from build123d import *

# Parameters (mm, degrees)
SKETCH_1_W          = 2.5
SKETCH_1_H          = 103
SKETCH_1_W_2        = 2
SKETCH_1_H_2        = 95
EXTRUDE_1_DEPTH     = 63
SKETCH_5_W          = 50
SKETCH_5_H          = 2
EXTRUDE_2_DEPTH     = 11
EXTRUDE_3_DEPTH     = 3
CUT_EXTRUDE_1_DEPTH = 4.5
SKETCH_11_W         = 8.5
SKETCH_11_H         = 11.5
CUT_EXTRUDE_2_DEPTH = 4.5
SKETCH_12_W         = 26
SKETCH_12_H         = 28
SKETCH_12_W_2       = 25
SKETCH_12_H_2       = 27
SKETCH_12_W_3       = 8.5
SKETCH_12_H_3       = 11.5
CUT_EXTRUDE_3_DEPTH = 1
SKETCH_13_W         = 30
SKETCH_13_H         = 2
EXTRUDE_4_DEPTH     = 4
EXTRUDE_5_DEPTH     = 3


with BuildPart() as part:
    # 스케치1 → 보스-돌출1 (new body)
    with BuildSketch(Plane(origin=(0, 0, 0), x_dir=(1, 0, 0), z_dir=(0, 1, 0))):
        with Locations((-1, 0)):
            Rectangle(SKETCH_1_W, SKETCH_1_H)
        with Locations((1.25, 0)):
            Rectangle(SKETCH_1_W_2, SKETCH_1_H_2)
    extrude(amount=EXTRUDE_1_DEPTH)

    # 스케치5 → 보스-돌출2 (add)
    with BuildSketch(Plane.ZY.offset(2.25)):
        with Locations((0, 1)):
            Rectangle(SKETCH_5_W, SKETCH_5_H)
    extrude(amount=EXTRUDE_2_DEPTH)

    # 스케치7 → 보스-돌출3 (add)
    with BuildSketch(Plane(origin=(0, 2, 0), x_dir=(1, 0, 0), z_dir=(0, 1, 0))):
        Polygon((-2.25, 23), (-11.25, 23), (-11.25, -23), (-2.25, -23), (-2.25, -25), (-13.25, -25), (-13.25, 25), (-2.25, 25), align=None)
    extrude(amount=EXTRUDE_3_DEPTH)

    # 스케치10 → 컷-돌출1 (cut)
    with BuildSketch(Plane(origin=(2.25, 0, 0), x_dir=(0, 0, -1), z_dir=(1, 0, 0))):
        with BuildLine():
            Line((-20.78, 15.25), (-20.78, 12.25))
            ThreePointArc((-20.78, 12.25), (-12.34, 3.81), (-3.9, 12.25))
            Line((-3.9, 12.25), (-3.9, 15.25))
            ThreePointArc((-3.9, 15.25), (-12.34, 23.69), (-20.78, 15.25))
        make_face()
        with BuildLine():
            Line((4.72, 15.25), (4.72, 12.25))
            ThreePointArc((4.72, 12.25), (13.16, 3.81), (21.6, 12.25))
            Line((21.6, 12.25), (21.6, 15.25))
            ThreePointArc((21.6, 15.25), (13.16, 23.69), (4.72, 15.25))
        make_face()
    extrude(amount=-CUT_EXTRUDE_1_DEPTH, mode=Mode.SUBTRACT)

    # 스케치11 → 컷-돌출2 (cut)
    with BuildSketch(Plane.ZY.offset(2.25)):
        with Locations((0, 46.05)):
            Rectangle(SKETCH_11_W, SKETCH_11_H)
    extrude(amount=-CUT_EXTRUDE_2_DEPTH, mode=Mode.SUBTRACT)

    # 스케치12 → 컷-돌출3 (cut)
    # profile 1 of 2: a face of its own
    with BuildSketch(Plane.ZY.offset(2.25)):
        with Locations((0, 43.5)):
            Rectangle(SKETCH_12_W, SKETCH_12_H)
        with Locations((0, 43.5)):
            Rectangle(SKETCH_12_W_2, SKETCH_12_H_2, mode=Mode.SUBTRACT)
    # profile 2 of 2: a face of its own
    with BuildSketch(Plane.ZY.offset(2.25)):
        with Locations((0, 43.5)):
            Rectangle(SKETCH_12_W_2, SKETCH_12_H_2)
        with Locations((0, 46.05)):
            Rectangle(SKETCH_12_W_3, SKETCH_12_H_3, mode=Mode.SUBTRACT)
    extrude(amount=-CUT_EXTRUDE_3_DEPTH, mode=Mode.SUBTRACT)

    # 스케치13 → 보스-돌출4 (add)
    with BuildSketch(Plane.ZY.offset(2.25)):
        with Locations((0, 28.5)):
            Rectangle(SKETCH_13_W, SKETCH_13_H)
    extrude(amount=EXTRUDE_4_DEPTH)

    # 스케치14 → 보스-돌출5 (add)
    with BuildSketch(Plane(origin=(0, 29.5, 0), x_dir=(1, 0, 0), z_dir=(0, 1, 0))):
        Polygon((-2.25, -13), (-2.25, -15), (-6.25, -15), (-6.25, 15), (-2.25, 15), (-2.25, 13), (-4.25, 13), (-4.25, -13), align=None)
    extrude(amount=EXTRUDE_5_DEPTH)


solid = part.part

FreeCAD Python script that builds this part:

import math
import FreeCAD as App
import Part
import Sketcher
from FreeCAD import Vector


def add_polygon(sketch, points):
    """Adds a closed chain of lines whose ends are joined by coincident constraints."""
    first, n = sketch.GeometryCount, len(points)
    for a, b in zip(points, points[1:] + points[:1]):
        sketch.addGeometry(Part.LineSegment(App.Vector(*a, 0), App.Vector(*b, 0)), False)
    for i in range(n):
        sketch.addConstraint(Sketcher.Constraint("Coincident", first + i, 2, first + (i + 1) % n, 1))

doc = App.newDocument("Part")
body = doc.addObject("PartDesign::Body", "Body")

sketch1 = body.newObject("Sketcher::SketchObject", "Sketch")
sketch1.AttachmentSupport = (doc.getObject("XZ_Plane"), [""])
sketch1.MapMode = "FlatFace"
add_polygon(sketch1, [(-2.25, -51.5), (-2.25, 51.5), (0.25, 51.5), (0.25, 47.5), (2.25, 47.5), (2.25, -47.5), (0.25, -47.5), (0.25, -51.5)])
sketch1.addConstraint([
    Sketcher.Constraint("Vertical", 0),
    Sketcher.Constraint("Horizontal", 1),
    Sketcher.Constraint("Vertical", 2),
    Sketcher.Constraint("Horizontal", 3),
    Sketcher.Constraint("Vertical", 4),
    Sketcher.Constraint("Horizontal", 5),
    Sketcher.Constraint("Vertical", 6),
    Sketcher.Constraint("Horizontal", 7),
    Sketcher.Constraint("Symmetric", 2, 2, 5, 2, -1),
    Sketcher.Constraint("Equal", 2, 6),
    Sketcher.Constraint("DistanceX", 3, 1, 3, 2, 2.0),
    Sketcher.Constraint("DistanceY", 0, 1, 0, 2, 103.0),
    Sketcher.Constraint("DistanceY", 2, 2, 2, 1, 4.0),
    Sketcher.Constraint("DistanceX", 1, 1, 1, 2, 2.5),
    Sketcher.Constraint("DistanceX", 0, 2, -1, 1, 2.25),
])
pad1 = body.newObject("PartDesign::Pad", "Pad")
pad1.Profile = sketch1
pad1.Length = 63
pad1.Reversed = True

sketch2 = body.newObject("Sketcher::SketchObject", "Sketch001")
sketch2.AttachmentSupport = (doc.getObject("YZ_Plane"), [""])
sketch2.MapMode = "FlatFace"
sketch2.AttachmentOffset = App.Placement(Vector(0, 0, -2.25), App.Rotation())
add_polygon(sketch2, [(2, -25), (0, -25), (0, 25), (2, 25)])
sketch2.addConstraint([
    Sketcher.Constraint("Horizontal", 0),
    Sketcher.Constraint("Vertical", 1),
    Sketcher.Constraint("Horizontal", 2),
    Sketcher.Constraint("Vertical", 3),
    Sketcher.Constraint("Symmetric", 0, 2, 1, 2, -1, 1),
    Sketcher.Constraint("DistanceX", 0, 2, 0, 1, 2.0),
    Sketcher.Constraint("DistanceY", 1, 1, 1, 2, 50.0),
])
pad2 = body.newObject("PartDesign::Pad", "Pad001")
pad2.Profile = sketch2
pad2.Length = 11
pad2.Reversed = True

sketch3 = body.newObject("Sketcher::SketchObject", "Sketch002")
sketch3.AttachmentSupport = (doc.getObject("XZ_Plane"), [""])
sketch3.MapMode = "FlatFace"
sketch3.AttachmentOffset = App.Placement(Vector(0, 0, -2), App.Rotation())
add_polygon(sketch3, [(-11.25, -23), (-2.25, -23), (-2.25, -25), (-13.25, -25), (-13.25, 25), (-2.25, 25), (-2.25, 23), (-11.25, 23)])
sketch3.addConstraint([
    Sketcher.Constraint("Horizontal", 0),
    Sketcher.Constraint("Vertical", 1),
    Sketcher.Constraint("Horizontal", 2),
    Sketcher.Constraint("Vertical", 3),
    Sketcher.Constraint("Horizontal", 4),
    Sketcher.Constraint("Vertical", 5),
    Sketcher.Constraint("Horizontal", 6),
    Sketcher.Constraint("Vertical", 7),
    Sketcher.Constraint("Symmetric", 1, 2, 4, 2, -1),
    Sketcher.Constraint("Equal", 1, 5),
    Sketcher.Constraint("DistanceX", 0, 1, 0, 2, 9.0),
    Sketcher.Constraint("DistanceX", 2, 2, 2, 1, 11.0),
    Sketcher.Constraint("DistanceY", 1, 2, 1, 1, 2.0),
    Sketcher.Constraint("DistanceY", 3, 1, 3, 2, 50.0),
    Sketcher.Constraint("DistanceX", 0, 2, -1, 1, 2.25),
])
pad3 = body.newObject("PartDesign::Pad", "Pad002")
pad3.Profile = sketch3
pad3.Length = 3
pad3.Reversed = True

sketch4 = body.newObject("Sketcher::SketchObject", "Sketch003")
sketch4.AttachmentSupport = (doc.getObject("YZ_Plane"), [""])
sketch4.MapMode = "FlatFace"
sketch4.AttachmentOffset = App.Placement(Vector(0, 0, 2.25), App.Rotation())
sketch4.addGeometry([
    Part.LineSegment(Vector(15.25, 20.78, 0), Vector(12.25, 20.78, 0)),
    Part.ArcOfCircle(Part.Circle(Vector(12.25, 12.34, 0), Vector(0, 0, 1), 8.44), math.radians(90), math.radians(270)),
    Part.LineSegment(Vector(12.25, 3.9, 0), Vector(15.25, 3.9, 0)),
    Part.ArcOfCircle(Part.Circle(Vector(15.25, 12.34, 0), Vector(0, 0, 1), 8.44), math.radians(-90), math.radians(90)),
    Part.LineSegment(Vector(15.25, -4.72, 0), Vector(12.25, -4.72, 0)),
    Part.ArcOfCircle(Part.Circle(Vector(12.25, -13.16, 0), Vector(0, 0, 1), 8.44), math.radians(90), math.radians(270)),
    Part.LineSegment(Vector(12.25, -21.6, 0), Vector(15.25, -21.6, 0)),
    Part.ArcOfCircle(Part.Circle(Vector(15.25, -13.16, 0), Vector(0, 0, 1), 8.44), math.radians(-90), math.radians(90)),
], False)
sketch4.addConstraint([
    Sketcher.Constraint("Tangent", 0, 2, 1, 1),
    Sketcher.Constraint("Tangent", 1, 2, 2, 1),
    Sketcher.Constraint("Tangent", 2, 2, 3, 1),
    Sketcher.Constraint("Tangent", 3, 2, 0, 1),
    Sketcher.Constraint("Tangent", 4, 2, 5, 1),
    Sketcher.Constraint("Tangent", 5, 2, 6, 1),
    Sketcher.Constraint("Tangent", 6, 2, 7, 1),
    Sketcher.Constraint("Tangent", 7, 2, 4, 1),
    Sketcher.Constraint("Horizontal", 0),
    Sketcher.Constraint("Horizontal", 2),
    Sketcher.Constraint("Horizontal", 4),
    Sketcher.Constraint("Horizontal", 6),
    Sketcher.Constraint("Equal", 3, 5),
    Sketcher.Constraint("Vertical", 1, 3, 5, 3),
    Sketcher.Constraint("Vertical", 3, 3, 7, 3),
    Sketcher.Constraint("DistanceX", 0, 2, 0, 1, 3.0),
    Sketcher.Constraint("Radius", 1, 8.44),
    Sketcher.Constraint("DistanceY", -1, 1, 1, 2, 3.9),
    Sketcher.Constraint("DistanceY", 5, 2, -1, 1, 21.6),
    Sketcher.Constraint("DistanceX", -1, 1, 1, 3, 12.25),
])
pocket1 = body.newObject("PartDesign::Pocket", "Pocket")
pocket1.Profile = sketch4
pocket1.Length = 4.5

sketch5 = body.newObject("Sketcher::SketchObject", "Sketch004")
sketch5.AttachmentSupport = (doc.getObject("YZ_Plane"), [""])
sketch5.MapMode = "FlatFace"
sketch5.AttachmentOffset = App.Placement(Vector(0, 0, -2.25), App.Rotation())
add_polygon(sketch5, [(51.8, -4.25), (40.3, -4.25), (40.3, 4.25), (51.8, 4.25)])
sketch5.addConstraint([
    Sketcher.Constraint("Horizontal", 0),
    Sketcher.Constraint("Vertical", 1),
    Sketcher.Constraint("Horizontal", 2),
    Sketcher.Constraint("Vertical", 3),
    Sketcher.Constraint("DistanceX", 0, 2, 0, 1, 11.5),
    Sketcher.Constraint("DistanceY", 1, 1, 1, 2, 8.5),
    Sketcher.Constraint("DistanceX", -1, 1, 0, 2, 40.3),
    Sketcher.Constraint("DistanceY", 0, 2, -1, 1, 4.25),
])
pocket2 = body.newObject("PartDesign::Pocket", "Pocket001")
pocket2.Profile = sketch5
pocket2.Length = 4.5
pocket2.Reversed = True

sketch6 = body.newObject("Sketcher::SketchObject", "Sketch005")
sketch6.AttachmentSupport = (doc.getObject("YZ_Plane"), [""])
sketch6.MapMode = "FlatFace"
sketch6.AttachmentOffset = App.Placement(Vector(0, 0, -2.25), App.Rotation())
add_polygon(sketch6, [(57.5, -13), (29.5, -13), (29.5, 13), (57.5, 13)])
add_polygon(sketch6, [(40.3, 4.25), (40.3, -4.25), (51.8, -4.25), (51.8, 4.25)])
sketch6.addConstraint([
    Sketcher.Constraint("Horizontal", 0),
    Sketcher.Constraint("Vertical", 1),
    Sketcher.Constraint("Horizontal", 2),
    Sketcher.Constraint("Vertical", 3),
    Sketcher.Constraint("Vertical", 4),
    Sketcher.Constraint("Horizontal", 5),
    Sketcher.Constraint("Vertical", 6),
    Sketcher.Constraint("Horizontal", 7),
    Sketcher.Constraint("DistanceX", 0, 2, 0, 1, 28.0),
    Sketcher.Constraint("DistanceY", 1, 1, 1, 2, 26.0),
    Sketcher.Constraint("DistanceX", 5, 1, 5, 2, 11.5),
    Sketcher.Constraint("DistanceY", 4, 2, 4, 1, 8.5),
    Sketcher.Constraint("DistanceY", 0, 2, -1, 1, 13.0),
    Sketcher.Constraint("DistanceX", -1, 1, 0, 2, 29.5),
    Sketcher.Constraint("DistanceX", -1, 1, 4, 2, 40.3),
    Sketcher.Constraint("DistanceY", 4, 2, -1, 1, 4.25),
])
pocket3 = body.newObject("PartDesign::Pocket", "Pocket002")
pocket3.Profile = sketch6
pocket3.Length = 1
pocket3.Reversed = True

sketch7 = body.newObject("Sketcher::SketchObject", "Sketch006")
sketch7.AttachmentSupport = (doc.getObject("YZ_Plane"), [""])
sketch7.MapMode = "FlatFace"
sketch7.AttachmentOffset = App.Placement(Vector(0, 0, -2.25), App.Rotation())
add_polygon(sketch7, [(29.5, -15), (27.5, -15), (27.5, 15), (29.5, 15)])
sketch7.addConstraint([
    Sketcher.Constraint("Horizontal", 0),
    Sketcher.Constraint("Vertical", 1),
    Sketcher.Constraint("Horizontal", 2),
    Sketcher.Constraint("Vertical", 3),
    Sketcher.Constraint("DistanceX", 0, 2, 0, 1, 2.0),
    Sketcher.Constraint("DistanceY", 1, 1, 1, 2, 30.0),
    Sketcher.Constraint("DistanceY", 0, 2, -1, 1, 15.0),
    Sketcher.Constraint("DistanceX", -1, 1, 0, 2, 27.5),
])
pad4 = body.newObject("PartDesign::Pad", "Pad003")
pad4.Profile = sketch7
pad4.Length = 4
pad4.Reversed = True

sketch8 = body.newObject("Sketcher::SketchObject", "Sketch007")
sketch8.AttachmentSupport = (doc.getObject("XZ_Plane"), [""])
sketch8.MapMode = "FlatFace"
sketch8.AttachmentOffset = App.Placement(Vector(0, 0, -29.5), App.Rotation())
add_polygon(sketch8, [(-2.25, 15), (-2.25, 13), (-4.25, 13), (-4.25, -13), (-2.25, -13), (-2.25, -15), (-6.25, -15), (-6.25, 15)])
sketch8.addConstraint([
    Sketcher.Constraint("Vertical", 0),
    Sketcher.Constraint("Horizontal", 1),
    Sketcher.Constraint("Vertical", 2),
    Sketcher.Constraint("Horizontal", 3),
    Sketcher.Constraint("Vertical", 4),
    Sketcher.Constraint("Horizontal", 5),
    Sketcher.Constraint("Vertical", 6),
    Sketcher.Constraint("Horizontal", 7),
    Sketcher.Constraint("Symmetric", 0, 2, 3, 2, -1),
    Sketcher.Constraint("Equal", 3, 0),
    Sketcher.Constraint("Equal", 0, 4),
    Sketcher.Constraint("DistanceX", 1, 2, 1, 1, 2.0),
    Sketcher.Constraint("DistanceX", 5, 2, 5, 1, 4.0),
    Sketcher.Constraint("DistanceY", 2, 2, 2, 1, 26.0),
    Sketcher.Constraint("DistanceX", 0, 2, -1, 1, 2.25),
])
pad5 = body.newObject("PartDesign::Pad", "Pad004")
pad5.Profile = sketch8
pad5.Length = 3
pad5.Reversed = True

doc.recompute()
